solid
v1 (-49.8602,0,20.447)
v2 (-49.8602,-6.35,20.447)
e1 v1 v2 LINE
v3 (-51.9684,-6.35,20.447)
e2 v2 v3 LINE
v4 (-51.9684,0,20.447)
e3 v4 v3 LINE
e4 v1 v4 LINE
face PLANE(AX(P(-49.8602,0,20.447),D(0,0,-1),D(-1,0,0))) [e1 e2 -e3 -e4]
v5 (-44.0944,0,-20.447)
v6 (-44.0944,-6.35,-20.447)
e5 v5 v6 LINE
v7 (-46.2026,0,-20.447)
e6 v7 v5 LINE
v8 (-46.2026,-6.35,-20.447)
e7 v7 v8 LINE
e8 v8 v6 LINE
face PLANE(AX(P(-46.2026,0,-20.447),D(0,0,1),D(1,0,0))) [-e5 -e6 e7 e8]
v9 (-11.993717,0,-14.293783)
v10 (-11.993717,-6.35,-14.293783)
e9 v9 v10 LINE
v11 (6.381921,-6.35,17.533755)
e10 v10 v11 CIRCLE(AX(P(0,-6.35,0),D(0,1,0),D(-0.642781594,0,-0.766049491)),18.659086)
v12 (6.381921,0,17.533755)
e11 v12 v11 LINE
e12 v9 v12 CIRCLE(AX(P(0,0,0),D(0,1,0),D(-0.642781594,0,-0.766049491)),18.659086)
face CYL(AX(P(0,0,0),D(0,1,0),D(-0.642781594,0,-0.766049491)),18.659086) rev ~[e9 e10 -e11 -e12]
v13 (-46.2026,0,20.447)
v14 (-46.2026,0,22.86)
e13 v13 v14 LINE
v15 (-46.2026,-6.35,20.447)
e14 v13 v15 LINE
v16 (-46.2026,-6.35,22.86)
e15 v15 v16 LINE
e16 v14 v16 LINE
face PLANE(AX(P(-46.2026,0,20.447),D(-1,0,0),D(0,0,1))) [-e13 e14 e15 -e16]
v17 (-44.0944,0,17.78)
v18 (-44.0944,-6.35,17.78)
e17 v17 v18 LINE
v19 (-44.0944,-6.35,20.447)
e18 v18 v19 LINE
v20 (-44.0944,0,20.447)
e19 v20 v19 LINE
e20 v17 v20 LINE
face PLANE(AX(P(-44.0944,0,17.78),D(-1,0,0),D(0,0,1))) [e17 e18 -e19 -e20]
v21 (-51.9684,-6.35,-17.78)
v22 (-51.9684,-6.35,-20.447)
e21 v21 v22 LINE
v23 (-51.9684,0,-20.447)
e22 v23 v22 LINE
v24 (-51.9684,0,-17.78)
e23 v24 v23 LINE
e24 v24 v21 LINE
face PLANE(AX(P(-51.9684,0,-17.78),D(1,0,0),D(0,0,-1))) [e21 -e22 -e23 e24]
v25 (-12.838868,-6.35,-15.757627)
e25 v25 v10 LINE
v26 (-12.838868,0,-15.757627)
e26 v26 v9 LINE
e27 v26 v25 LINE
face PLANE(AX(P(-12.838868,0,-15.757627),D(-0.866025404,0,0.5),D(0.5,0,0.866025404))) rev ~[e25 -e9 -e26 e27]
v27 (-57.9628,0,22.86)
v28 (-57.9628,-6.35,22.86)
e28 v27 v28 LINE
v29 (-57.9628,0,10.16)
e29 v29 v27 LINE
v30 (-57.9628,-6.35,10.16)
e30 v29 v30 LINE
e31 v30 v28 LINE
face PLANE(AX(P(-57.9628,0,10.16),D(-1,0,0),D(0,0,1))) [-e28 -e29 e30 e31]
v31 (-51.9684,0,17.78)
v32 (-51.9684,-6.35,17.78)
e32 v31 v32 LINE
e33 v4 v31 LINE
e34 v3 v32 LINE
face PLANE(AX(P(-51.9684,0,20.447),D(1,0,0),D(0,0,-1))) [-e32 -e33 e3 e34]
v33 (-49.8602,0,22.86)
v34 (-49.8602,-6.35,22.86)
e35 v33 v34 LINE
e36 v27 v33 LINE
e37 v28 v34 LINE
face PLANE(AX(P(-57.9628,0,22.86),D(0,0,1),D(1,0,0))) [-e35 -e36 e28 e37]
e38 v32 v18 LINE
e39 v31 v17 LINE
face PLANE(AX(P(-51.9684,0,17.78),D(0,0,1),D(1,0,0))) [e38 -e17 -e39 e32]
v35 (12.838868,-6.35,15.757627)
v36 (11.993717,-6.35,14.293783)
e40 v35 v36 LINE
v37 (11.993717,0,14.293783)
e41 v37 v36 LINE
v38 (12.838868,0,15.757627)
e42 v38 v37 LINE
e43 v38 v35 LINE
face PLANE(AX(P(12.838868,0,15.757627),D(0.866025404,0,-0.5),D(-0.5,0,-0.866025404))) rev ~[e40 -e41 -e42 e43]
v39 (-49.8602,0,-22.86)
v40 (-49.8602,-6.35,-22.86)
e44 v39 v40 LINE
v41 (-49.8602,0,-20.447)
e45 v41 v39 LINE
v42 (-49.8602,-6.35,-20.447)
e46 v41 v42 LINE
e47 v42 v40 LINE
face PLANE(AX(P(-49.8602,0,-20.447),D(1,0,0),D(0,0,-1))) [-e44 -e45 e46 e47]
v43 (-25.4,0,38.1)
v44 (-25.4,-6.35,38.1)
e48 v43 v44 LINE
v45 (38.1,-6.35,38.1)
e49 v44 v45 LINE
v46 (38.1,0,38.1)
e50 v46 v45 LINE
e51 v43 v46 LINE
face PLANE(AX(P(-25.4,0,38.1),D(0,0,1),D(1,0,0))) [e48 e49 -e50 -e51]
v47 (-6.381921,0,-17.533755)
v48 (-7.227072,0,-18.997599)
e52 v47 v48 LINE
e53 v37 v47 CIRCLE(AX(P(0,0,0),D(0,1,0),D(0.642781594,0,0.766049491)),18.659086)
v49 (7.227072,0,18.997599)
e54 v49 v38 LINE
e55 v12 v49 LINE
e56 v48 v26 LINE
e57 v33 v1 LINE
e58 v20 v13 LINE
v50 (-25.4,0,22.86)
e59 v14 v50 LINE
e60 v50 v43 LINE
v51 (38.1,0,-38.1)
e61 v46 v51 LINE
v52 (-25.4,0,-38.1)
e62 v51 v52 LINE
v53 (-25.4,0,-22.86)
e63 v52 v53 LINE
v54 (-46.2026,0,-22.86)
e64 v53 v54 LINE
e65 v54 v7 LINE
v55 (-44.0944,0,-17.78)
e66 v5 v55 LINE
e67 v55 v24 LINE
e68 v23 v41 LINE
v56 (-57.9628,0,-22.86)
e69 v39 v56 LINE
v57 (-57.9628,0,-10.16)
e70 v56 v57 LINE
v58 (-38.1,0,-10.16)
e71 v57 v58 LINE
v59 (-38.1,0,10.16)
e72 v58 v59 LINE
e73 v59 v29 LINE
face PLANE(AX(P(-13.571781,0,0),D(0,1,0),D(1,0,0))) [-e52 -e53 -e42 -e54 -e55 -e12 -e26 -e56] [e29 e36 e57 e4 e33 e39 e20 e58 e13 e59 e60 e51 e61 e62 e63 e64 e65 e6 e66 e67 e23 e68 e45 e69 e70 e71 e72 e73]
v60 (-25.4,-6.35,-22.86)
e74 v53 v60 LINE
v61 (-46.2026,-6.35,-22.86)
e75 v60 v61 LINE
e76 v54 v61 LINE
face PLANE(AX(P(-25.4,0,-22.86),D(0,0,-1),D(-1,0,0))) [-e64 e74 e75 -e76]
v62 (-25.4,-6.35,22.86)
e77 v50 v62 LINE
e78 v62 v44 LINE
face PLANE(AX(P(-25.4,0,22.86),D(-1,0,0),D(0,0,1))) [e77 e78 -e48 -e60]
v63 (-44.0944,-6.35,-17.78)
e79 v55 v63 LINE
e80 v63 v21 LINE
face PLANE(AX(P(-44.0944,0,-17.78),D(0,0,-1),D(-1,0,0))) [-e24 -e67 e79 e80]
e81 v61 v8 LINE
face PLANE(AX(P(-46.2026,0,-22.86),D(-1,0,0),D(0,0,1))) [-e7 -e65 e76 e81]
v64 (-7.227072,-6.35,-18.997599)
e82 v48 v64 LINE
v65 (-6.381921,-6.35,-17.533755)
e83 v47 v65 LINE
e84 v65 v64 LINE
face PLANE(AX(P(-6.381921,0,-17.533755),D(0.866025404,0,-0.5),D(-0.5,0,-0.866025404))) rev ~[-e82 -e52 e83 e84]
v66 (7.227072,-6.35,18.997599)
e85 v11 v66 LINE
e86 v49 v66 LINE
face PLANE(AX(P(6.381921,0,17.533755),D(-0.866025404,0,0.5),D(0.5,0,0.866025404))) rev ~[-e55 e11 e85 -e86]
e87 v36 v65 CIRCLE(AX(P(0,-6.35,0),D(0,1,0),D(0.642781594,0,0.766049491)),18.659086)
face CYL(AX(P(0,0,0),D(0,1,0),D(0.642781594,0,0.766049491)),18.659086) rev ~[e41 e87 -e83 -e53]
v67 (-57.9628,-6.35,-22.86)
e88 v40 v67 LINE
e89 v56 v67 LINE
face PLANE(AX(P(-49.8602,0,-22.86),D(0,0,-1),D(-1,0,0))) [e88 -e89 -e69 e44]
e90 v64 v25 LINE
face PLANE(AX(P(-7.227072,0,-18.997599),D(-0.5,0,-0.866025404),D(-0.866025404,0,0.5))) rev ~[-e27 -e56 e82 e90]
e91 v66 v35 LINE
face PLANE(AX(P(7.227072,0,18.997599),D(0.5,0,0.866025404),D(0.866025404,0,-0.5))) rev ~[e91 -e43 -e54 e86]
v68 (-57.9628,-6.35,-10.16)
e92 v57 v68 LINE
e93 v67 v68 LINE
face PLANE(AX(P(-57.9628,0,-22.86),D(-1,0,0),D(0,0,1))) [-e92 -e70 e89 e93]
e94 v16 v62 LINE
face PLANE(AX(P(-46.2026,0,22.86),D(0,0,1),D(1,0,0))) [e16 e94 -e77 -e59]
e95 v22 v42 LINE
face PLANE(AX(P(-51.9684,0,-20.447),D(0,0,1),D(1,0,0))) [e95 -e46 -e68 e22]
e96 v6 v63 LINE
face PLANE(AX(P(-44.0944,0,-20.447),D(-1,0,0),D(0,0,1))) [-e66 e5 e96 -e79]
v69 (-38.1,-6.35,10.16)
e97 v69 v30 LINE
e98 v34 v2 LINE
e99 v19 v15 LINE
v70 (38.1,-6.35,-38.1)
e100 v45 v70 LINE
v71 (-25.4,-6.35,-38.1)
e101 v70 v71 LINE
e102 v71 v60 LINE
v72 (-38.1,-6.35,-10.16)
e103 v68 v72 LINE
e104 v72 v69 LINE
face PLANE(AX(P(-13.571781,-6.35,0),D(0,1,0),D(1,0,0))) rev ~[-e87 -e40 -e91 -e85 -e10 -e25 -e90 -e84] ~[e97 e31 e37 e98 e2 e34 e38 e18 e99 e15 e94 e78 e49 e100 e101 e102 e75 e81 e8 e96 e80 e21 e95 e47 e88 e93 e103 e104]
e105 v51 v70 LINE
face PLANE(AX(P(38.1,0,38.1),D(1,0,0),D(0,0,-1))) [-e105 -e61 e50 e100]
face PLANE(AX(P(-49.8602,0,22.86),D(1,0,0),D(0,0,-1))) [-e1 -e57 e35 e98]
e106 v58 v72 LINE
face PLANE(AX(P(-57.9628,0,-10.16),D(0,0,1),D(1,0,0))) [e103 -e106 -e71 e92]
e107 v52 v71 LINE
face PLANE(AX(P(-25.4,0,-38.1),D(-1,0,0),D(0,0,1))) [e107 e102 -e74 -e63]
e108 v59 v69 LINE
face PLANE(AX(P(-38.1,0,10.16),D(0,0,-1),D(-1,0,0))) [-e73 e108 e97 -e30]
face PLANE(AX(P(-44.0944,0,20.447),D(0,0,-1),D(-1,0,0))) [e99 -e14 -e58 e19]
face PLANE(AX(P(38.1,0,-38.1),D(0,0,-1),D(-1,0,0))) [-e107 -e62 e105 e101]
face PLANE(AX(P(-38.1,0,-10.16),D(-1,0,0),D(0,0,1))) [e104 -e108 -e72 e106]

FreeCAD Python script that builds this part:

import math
import FreeCAD as App
import Part
import Sketcher
from FreeCAD import Vector
Q = App.Units.Quantity

doc = App.newDocument("Part")
body = doc.addObject("PartDesign::Body", "Body")

sketch1 = body.newObject("Sketcher::SketchObject", "Sketch")
sketch1.AttachmentSupport = (doc.getObject("XZ_Plane"), [""])
sketch1.MapMode = "FlatFace"
sketch1.addGeometry([
    Part.LineSegment(Vector(-25.4, 38.1, 0), Vector(38.1, 38.1, 0)),
    Part.LineSegment(Vector(38.1, 38.1, 0), Vector(38.1, -38.1, 0)),
    Part.LineSegment(Vector(38.1, -38.1, 0), Vector(-25.4, -38.1, 0)),
    Part.LineSegment(Vector(-25.4, -38.1, 0), Vector(-25.4, -22.9, 0)),
    Part.LineSegment(Vector(-25.4, -22.9, 0), Vector(-46.2, -22.9, 0)),
    Part.LineSegment(Vector(-46.2, -22.9, 0), Vector(-46.2, -20.4, 0)),
    Part.LineSegment(Vector(-46.2, -20.4, 0), Vector(-44.1, -20.4, 0)),
    Part.LineSegment(Vector(-44.1, -20.4, 0), Vector(-44.1, -17.8, 0)),
    Part.LineSegment(Vector(-44.1, -17.8, 0), Vector(-52, -17.8, 0)),
    Part.LineSegment(Vector(-52, -17.8, 0), Vector(-52, -20.4, 0)),
    Part.LineSegment(Vector(-52, -20.4, 0), Vector(-49.9, -20.4, 0)),
    Part.LineSegment(Vector(-49.9, -20.4, 0), Vector(-49.9, -22.9, 0)),
    Part.LineSegment(Vector(-49.9, -22.9, 0), Vector(-58, -22.9, 0)),
    Part.LineSegment(Vector(-58, -22.9, 0), Vector(-58, -10.2, 0)),
    Part.LineSegment(Vector(-58, -10.2, 0), Vector(-38.1, -10.2, 0)),
    Part.LineSegment(Vector(-38.1, -10.2, 0), Vector(-38.1, 10.2, 0)),
    Part.LineSegment(Vector(-38.1, 10.2, 0), Vector(-58, 10.2, 0)),
    Part.LineSegment(Vector(-58, 10.2, 0), Vector(-58, 22.9, 0)),
    Part.LineSegment(Vector(-58, 22.9, 0), Vector(-49.9, 22.9, 0)),
    Part.LineSegment(Vector(-49.9, 22.9, 0), Vector(-49.9, 20.4, 0)),
    Part.LineSegment(Vector(-49.9, 20.4, 0), Vector(-52, 20.4, 0)),
    Part.LineSegment(Vector(-52, 20.4, 0), Vector(-52, 17.8, 0)),
    Part.LineSegment(Vector(-52, 17.8, 0), Vector(-44.1, 17.8, 0)),
    Part.LineSegment(Vector(-44.1, 17.8, 0), Vector(-44.1, 20.4, 0)),
    Part.LineSegment(Vector(-44.1, 20.4, 0), Vector(-46.2, 20.4, 0)),
    Part.LineSegment(Vector(-46.2, 20.4, 0), Vector(-46.2, 22.9, 0)),
    Part.LineSegment(Vector(-46.2, 22.9, 0), Vector(-25.4, 22.9, 0)),
    Part.LineSegment(Vector(-25.4, 22.9, 0), Vector(-25.4, 38.1, 0)),
    Part.LineSegment(Vector(12.8, 15.8, 0), Vector(7.2, 19, 0)),
    Part.LineSegment(Vector(7.2, 19, 0), Vector(6.4, 17.5, 0)),
    Part.ArcOfCircle(Part.Circle(Vector(0, 0, 0), Vector(0, 0, 1), 18.7), math.radians(70), math.radians(230)),
    Part.LineSegment(Vector(-12, -14.3, 0), Vector(-12.8, -15.8, 0)),
    Part.LineSegment(Vector(-12.8, -15.8, 0), Vector(-7.2, -19, 0)),
    Part.LineSegment(Vector(-7.2, -19, 0), Vector(-6.4, -17.5, 0)),
    Part.ArcOfCircle(Part.Circle(Vector(0, 0, 0), Vector(0, 0, 1), 18.7), math.radians(-110), math.radians(50)),
    Part.LineSegment(Vector(12, 14.3, 0), Vector(12.8, 15.8, 0)),
], False)
sketch1.addConstraint([
    Sketcher.Constraint("Coincident", 0, 2, 1, 1),
    Sketcher.Constraint("Coincident", 1, 2, 2, 1),
    Sketcher.Constraint("Coincident", 2, 2, 3, 1),
    Sketcher.Constraint("Coincident", 3, 2, 4, 1),
    Sketcher.Constraint("Coincident", 4, 2, 5, 1),
    Sketcher.Constraint("Coincident", 5, 2, 6, 1),
    Sketcher.Constraint("Coincident", 6, 2, 7, 1),
    Sketcher.Constraint("Coincident", 7, 2, 8, 1),
    Sketcher.Constraint("Coincident", 8, 2, 9, 1),
    Sketcher.Constraint("Coincident", 9, 2, 10, 1),
    Sketcher.Constraint("Coincident", 10, 2, 11, 1),
    Sketcher.Constraint("Coincident", 11, 2, 12, 1),
    Sketcher.Constraint("Coincident", 12, 2, 13, 1),
    Sketcher.Constraint("Coincident", 13, 2, 14, 1),
    Sketcher.Constraint("Coincident", 14, 2, 15, 1),
    Sketcher.Constraint("Coincident", 15, 2, 16, 1),
    Sketcher.Constraint("Coincident", 16, 2, 17, 1),
    Sketcher.Constraint("Coincident", 17, 2, 18, 1),
    Sketcher.Constraint("Coincident", 18, 2, 19, 1),
    Sketcher.Constraint("Coincident", 19, 2, 20, 1),
    Sketcher.Constraint("Coincident", 20, 2, 21, 1),
    Sketcher.Constraint("Coincident", 21, 2, 22, 1),
    Sketcher.Constraint("Coincident", 22, 2, 23, 1),
    Sketcher.Constraint("Coincident", 23, 2, 24, 1),
    Sketcher.Constraint("Coincident", 24, 2, 25, 1),
    Sketcher.Constraint("Coincident", 25, 2, 26, 1),
    Sketcher.Constraint("Coincident", 26, 2, 27, 1),
    Sketcher.Constraint("Coincident", 27, 2, 0, 1),
    Sketcher.Constraint("Coincident", 28, 2, 29, 1),
    Sketcher.Constraint("Coincident", 29, 2, 30, 1),
    Sketcher.Constraint("Coincident", 30, 2, 31, 1),
    Sketcher.Constraint("Coincident", 31, 2, 32, 1),
    Sketcher.Constraint("Coincident", 32, 2, 33, 1),
    Sketcher.Constraint("Coincident", 33, 2, 34, 1),
    Sketcher.Constraint("Coincident", 34, 2, 35, 1),
    Sketcher.Constraint("Coincident", 35, 2, 28, 1),
    Sketcher.Constraint("Horizontal", 0),
    Sketcher.Constraint("Vertical", 1),
    Sketcher.Constraint("Horizontal", 2),
    Sketcher.Constraint("Vertical", 3),
    Sketcher.Constraint("Horizontal", 4),
    Sketcher.Constraint("Vertical", 5),
    Sketcher.Constraint("Horizontal", 6),
    Sketcher.Constraint("Vertical", 7),
    Sketcher.Constraint("Horizontal", 8),
    Sketcher.Constraint("Vertical", 9),
    Sketcher.Constraint("Horizontal", 10),
    Sketcher.Constraint("Vertical", 11),
    Sketcher.Constraint("Horizontal", 12),
    Sketcher.Constraint("Vertical", 13),
    Sketcher.Constraint("Horizontal", 14),
    Sketcher.Constraint("Vertical", 15),
    Sketcher.Constraint("Horizontal", 16),
    Sketcher.Constraint("Vertical", 17),
    Sketcher.Constraint("Horizontal", 18),
    Sketcher.Constraint("Vertical", 19),
    Sketcher.Constraint("Horizontal", 20),
    Sketcher.Constraint("Vertical", 21),
    Sketcher.Constraint("Horizontal", 22),
    Sketcher.Constraint("Vertical", 23),
    Sketcher.Constraint("Horizontal", 24),
    Sketcher.Constraint("Vertical", 25),
    Sketcher.Constraint("Horizontal", 26),
    Sketcher.Constraint("Vertical", 27),
    Sketcher.Constraint("Coincident", 30, 3, -1, 1),
    Sketcher.Constraint("Coincident", 34, 3, -1, 1),
    Sketcher.Constraint("Equal", 30, 34),
    Sketcher.Constraint("Symmetric", 28, 2, 32, 2, -1, 1),
    Sketcher.Constraint("Symmetric", 31, 2, 35, 2, -1, 1),
    Sketcher.Constraint("Symmetric", 13, 2, 16, 2, -1),
    Sketcher.Constraint("Symmetric", 11, 2, 18, 2, -1),
    Sketcher.Constraint("Symmetric", 9, 2, 20, 2, -1),
    Sketcher.Constraint("Symmetric", 7, 2, 22, 2, -1),
    Sketcher.Constraint("Symmetric", 5, 2, 24, 2, -1),
    Sketcher.Constraint("Symmetric", 3, 2, 26, 2, -1),
    Sketcher.Constraint("Perpendicular", 28, 29),
    Sketcher.Constraint("Parallel", 29, 31),
    Sketcher.Constraint("Perpendicular", 32, 33),
    Sketcher.Constraint("Parallel", 33, 35),
    Sketcher.Constraint("Horizontal", 6, 2, 9, 2),
    Sketcher.Constraint("Horizontal", 4, 2, 11, 2),
    Sketcher.Constraint("Equal", 6, 10),
    Sketcher.Constraint("Equal", 3, 27),
    Sketcher.Constraint("Equal", 29, 31),
    Sketcher.Constraint("DistanceY", 1, 2, 1, 1, Q("3 in")),
    Sketcher.Constraint("DistanceX", 0, 1, 0, 2, Q("2.5 in")),
    Sketcher.Constraint("DistanceY", 3, 1, 3, 2, Q("0.6 in")),
    Sketcher.Constraint("DistanceY", 13, 1, 13, 2, Q("0.5 in")),
    Sketcher.Constraint("DistanceX", 2, 2, -1, 1, Q("1 in")),
    Sketcher.Constraint("Angle", 28, Q("150 deg")),
    Sketcher.Constraint("DistanceX", 8, 2, 8, 1, Q("0.31 in")),
    Sketcher.Constraint("DistanceY", 7, 2, -1, 1, Q("0.7 in")),
    Sketcher.Constraint("DistanceX", 14, 2, -1, 1, Q("1.5 in")),
    Sketcher.Constraint("DistanceX", 4, 2, 4, 1, Q("0.819 in")),
    Sketcher.Constraint("DistanceX", 6, 1, 6, 2, Q("0.083 in")),
    Sketcher.Constraint("DistanceX", 12, 2, 12, 1, Q("0.319 in")),
    Sketcher.Constraint("DistanceY", 5, 1, 5, 2, Q("0.095 in")),
    Sketcher.Constraint("Radius", 30, Q("18.659086 mm")),
    Sketcher.Constraint("Distance", 29, Q("1.690301 mm")),
    Sketcher.Constraint("DistanceY", -1, 1, 28, 2, Q("18.997599 mm")),
])
pad1 = body.newObject("PartDesign::Pad", "Pad")
pad1.Profile = sketch1
pad1.Length = Q("0.25 in")

doc.recompute()
